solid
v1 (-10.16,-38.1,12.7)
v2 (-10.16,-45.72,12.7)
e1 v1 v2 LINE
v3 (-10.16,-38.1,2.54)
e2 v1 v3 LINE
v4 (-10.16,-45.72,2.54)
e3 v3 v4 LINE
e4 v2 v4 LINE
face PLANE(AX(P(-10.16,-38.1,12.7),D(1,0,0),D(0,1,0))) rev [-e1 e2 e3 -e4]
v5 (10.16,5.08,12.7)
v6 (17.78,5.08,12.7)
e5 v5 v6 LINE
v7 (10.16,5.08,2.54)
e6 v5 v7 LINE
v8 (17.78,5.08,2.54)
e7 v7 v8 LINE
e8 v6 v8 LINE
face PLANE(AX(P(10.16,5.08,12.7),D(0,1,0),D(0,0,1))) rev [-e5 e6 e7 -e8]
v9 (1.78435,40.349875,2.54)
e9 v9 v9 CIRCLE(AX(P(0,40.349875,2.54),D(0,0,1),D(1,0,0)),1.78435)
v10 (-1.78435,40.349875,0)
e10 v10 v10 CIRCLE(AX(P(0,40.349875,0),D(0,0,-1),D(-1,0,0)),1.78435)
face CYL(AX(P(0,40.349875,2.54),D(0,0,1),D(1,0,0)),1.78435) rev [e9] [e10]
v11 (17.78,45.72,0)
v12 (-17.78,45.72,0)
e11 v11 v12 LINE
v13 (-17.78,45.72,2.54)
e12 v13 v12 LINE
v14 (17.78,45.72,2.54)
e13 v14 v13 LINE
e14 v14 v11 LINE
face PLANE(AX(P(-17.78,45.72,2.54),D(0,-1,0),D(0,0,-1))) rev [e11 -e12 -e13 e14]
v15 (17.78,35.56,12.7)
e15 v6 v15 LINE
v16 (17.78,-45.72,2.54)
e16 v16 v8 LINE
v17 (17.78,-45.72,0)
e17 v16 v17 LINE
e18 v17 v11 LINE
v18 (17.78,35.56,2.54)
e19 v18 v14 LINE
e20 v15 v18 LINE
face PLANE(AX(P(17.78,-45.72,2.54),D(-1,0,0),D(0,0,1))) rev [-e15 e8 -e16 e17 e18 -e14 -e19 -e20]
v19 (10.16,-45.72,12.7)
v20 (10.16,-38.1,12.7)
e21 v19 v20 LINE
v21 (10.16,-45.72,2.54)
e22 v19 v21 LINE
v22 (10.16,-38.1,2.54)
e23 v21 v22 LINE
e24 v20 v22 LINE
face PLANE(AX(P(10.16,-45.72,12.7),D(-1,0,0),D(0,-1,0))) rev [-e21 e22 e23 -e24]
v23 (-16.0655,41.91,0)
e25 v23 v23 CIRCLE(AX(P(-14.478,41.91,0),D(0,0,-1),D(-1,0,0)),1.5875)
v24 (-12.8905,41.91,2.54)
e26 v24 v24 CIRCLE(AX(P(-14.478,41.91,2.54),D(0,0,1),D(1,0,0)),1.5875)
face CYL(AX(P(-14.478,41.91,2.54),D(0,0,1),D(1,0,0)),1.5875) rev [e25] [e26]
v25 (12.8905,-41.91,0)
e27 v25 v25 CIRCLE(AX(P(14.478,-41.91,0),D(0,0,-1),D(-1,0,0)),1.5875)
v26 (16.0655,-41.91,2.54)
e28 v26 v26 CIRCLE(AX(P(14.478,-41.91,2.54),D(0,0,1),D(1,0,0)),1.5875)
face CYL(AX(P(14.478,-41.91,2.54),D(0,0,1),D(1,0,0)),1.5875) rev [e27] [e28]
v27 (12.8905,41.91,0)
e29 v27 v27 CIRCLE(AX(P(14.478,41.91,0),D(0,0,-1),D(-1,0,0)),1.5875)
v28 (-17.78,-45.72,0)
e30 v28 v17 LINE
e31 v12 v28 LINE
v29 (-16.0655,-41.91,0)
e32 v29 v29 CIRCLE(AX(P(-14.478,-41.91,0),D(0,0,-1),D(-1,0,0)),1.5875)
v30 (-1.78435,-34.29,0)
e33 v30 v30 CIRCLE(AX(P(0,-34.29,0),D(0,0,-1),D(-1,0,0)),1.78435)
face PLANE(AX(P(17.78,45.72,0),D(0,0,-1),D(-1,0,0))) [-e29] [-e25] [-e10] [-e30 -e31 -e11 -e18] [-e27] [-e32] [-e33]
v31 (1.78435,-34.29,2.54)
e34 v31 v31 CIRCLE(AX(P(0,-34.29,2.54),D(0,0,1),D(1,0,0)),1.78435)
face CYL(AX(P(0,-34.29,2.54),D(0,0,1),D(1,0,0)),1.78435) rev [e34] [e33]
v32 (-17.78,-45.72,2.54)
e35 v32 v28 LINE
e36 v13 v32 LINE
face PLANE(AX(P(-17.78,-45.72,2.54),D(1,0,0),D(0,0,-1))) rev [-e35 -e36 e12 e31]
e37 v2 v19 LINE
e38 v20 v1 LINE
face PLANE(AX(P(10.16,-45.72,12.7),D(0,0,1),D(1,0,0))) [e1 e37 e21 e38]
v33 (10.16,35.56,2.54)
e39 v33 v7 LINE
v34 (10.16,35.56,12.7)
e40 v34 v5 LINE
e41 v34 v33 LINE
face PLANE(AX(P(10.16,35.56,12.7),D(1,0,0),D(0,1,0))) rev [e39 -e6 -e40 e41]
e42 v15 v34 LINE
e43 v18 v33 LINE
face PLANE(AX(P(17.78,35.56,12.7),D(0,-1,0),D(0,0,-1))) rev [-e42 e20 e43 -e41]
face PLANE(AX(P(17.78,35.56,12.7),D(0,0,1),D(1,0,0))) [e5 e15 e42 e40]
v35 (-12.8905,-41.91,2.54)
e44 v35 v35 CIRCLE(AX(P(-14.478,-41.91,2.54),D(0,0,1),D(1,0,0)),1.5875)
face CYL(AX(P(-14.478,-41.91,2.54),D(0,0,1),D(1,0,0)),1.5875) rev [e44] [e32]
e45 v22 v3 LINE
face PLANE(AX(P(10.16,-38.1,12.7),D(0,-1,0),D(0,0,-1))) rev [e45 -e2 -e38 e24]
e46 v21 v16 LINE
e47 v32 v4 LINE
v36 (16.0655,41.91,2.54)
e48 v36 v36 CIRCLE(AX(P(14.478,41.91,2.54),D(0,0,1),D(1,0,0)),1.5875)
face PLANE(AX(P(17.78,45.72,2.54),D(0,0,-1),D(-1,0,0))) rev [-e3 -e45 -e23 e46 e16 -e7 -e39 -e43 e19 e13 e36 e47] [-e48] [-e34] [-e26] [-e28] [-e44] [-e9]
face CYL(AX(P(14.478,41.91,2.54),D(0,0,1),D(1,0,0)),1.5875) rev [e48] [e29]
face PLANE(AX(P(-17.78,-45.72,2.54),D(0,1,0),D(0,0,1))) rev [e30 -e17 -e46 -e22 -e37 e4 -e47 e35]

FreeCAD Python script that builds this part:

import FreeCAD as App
import Part
import Sketcher
from FreeCAD import Vector
Q = App.Units.Quantity

doc = App.newDocument("Part")
body = doc.addObject("PartDesign::Body", "Body")

# Sketch on XY plane
sketch1 = body.newObject("Sketcher::SketchObject", "Sketch")
sketch1.AttachmentSupport = (doc.getObject("XY_Plane"), [""])
sketch1.MapMode = "FlatFace"
sketch1.addGeometry([
    Part.LineSegment(Vector(-18, 46, 0), Vector(-18, -46, 0)),
    Part.LineSegment(Vector(-18, -46, 0), Vector(18, -46, 0)),
    Part.LineSegment(Vector(18, -46, 0), Vector(18, 46, 0)),
    Part.LineSegment(Vector(18, 46, 0), Vector(-18, 46, 0)),
], False)
sketch1.addConstraint([
    Sketcher.Constraint("Coincident", 0, 2, 1, 1),
    Sketcher.Constraint("Coincident", 1, 2, 2, 1),
    Sketcher.Constraint("Coincident", 2, 2, 3, 1),
    Sketcher.Constraint("Coincident", 3, 2, 0, 1),
    Sketcher.Constraint("Vertical", 0),
    Sketcher.Constraint("Horizontal", 1),
    Sketcher.Constraint("Vertical", 2),
    Sketcher.Constraint("Horizontal", 3),
    Sketcher.Constraint("Symmetric", 0, 2, 2, 2, -1, 1),
    Sketcher.Constraint("DistanceX", 1, 1, 1, 2, Q("1.4 in")),
    Sketcher.Constraint("DistanceY", 0, 2, 0, 1, Q("3.6 in")),
])
pad1 = body.newObject("PartDesign::Pad", "Pad")
pad1.Profile = sketch1
pad1.Length = Q("0.1 in")

# Sketch on YZ plane
sketch2 = body.newObject("Sketcher::SketchObject", "Sketch001")
sketch2.AttachmentSupport = (doc.getObject("YZ_Plane"), [""])
sketch2.MapMode = "FlatFace"
sketch2.AttachmentOffset = App.Placement(Vector(0, 0, 0.57 * 25.4), App.Rotation())
sketch2.addGeometry([
    Part.LineSegment(Vector(41.9, -13.7, 0), Vector(41.9, 2.5, 0)),
    Part.LineSegment(Vector(41.9, 2.5, 0), Vector(40.3, 2.5, 0)),
    Part.LineSegment(Vector(40.3, 2.5, 0), Vector(40.3, -12.7, 0)),
    Part.LineSegment(Vector(40.3, -12.7, 0), Vector(41.9, -13.7, 0)),
], False)
sketch2.addGeometry(Part.LineSegment(Vector(41.9, 2.5, 0), Vector(41.9, -13.7, 0)), True)  # axis
sketch2.addConstraint([
    Sketcher.Constraint("Coincident", 0, 2, 1, 1),
    Sketcher.Constraint("Coincident", 1, 2, 2, 1),
    Sketcher.Constraint("Coincident", 2, 2, 3, 1),
    Sketcher.Constraint("Coincident", 3, 2, 0, 1),
    Sketcher.Constraint("Vertical", 0),
    Sketcher.Constraint("Horizontal", 1),
    Sketcher.Constraint("Vertical", 2),
    Sketcher.Constraint("Vertical", 4),
    Sketcher.Constraint("Coincident", 4, 1, 0, 2),
    Sketcher.Constraint("Equal", 0, 4),
    Sketcher.Constraint("DistanceY", 2, 2, 2, 1, Q("0.6 in")),
    Sketcher.Constraint("Angle", 3, Q("-31 deg")),
    Sketcher.Constraint("DistanceY", -1, 1, 0, 2, Q("0.1 in")),
    Sketcher.Constraint("DistanceX", 1, 2, 1, 1, Q("0.0625 in")),
    Sketcher.Constraint("DistanceX", -1, 1, 0, 2, Q("1.65 in")),
])
groove = body.newObject("PartDesign::Groove", "Groove")
groove.Profile = sketch2
groove.ReferenceAxis = (sketch2, ["Axis0"])
groove.Angle = 360
doc.recompute()

mirrored = body.newObject("PartDesign::Mirrored", "Mirrored")
mirrored.Originals = [groove]
mirrored.MirrorPlane = (doc.getObject("YZ_Plane"), [""])
body.Tip = mirrored
doc.recompute()

mirrored2 = body.newObject("PartDesign::Mirrored", "Mirrored001")
mirrored2.Originals = [groove]
mirrored2.MirrorPlane = (doc.getObject("XZ_Plane"), [""])
body.Tip = mirrored2

# Sketch on YZ plane
sketch3 = body.newObject("Sketcher::SketchObject", "Sketch002")
sketch3.AttachmentSupport = (doc.getObject("YZ_Plane"), [""])
sketch3.MapMode = "FlatFace"
sketch3.AttachmentOffset = App.Placement(Vector(0, 0, -0.57 * 25.4), App.Rotation())
sketch3.addGeometry([
    Part.LineSegment(Vector(-41.9, -13.7, 0), Vector(-41.9, 2.5, 0)),
    Part.LineSegment(Vector(-41.9, 2.5, 0), Vector(-40.3, 2.5, 0)),
    Part.LineSegment(Vector(-40.3, 2.5, 0), Vector(-40.3, -12.7, 0)),
    Part.LineSegment(Vector(-40.3, -12.7, 0), Vector(-41.9, -13.7, 0)),
], False)
sketch3.addGeometry(Part.LineSegment(Vector(-41.9, 2.5, 0), Vector(-41.9, -13.7, 0)), True)  # axis
sketch3.addConstraint([
    Sketcher.Constraint("Coincident", 0, 2, 1, 1),
    Sketcher.Constraint("Coincident", 1, 2, 2, 1),
    Sketcher.Constraint("Coincident", 2, 2, 3, 1),
    Sketcher.Constraint("Coincident", 3, 2, 0, 1),
    Sketcher.Constraint("Vertical", 0),
    Sketcher.Constraint("Horizontal", 1),
    Sketcher.Constraint("Vertical", 2),
    Sketcher.Constraint("Vertical", 4),
    Sketcher.Constraint("Coincident", 4, 1, 0, 2),
    Sketcher.Constraint("Equal", 0, 4),
    Sketcher.Constraint("DistanceY", 2, 2, 2, 1, Q("0.6 in")),
    Sketcher.Constraint("Angle", 3, Q("-149 deg")),
    Sketcher.Constraint("DistanceY", -1, 1, 0, 2, Q("0.1 in")),
    Sketcher.Constraint("DistanceX", 1, 1, 1, 2, Q("0.0625 in")),
    Sketcher.Constraint("DistanceX", 0, 2, -1, 1, Q("1.65 in")),
])
groove2 = body.newObject("PartDesign::Groove", "Groove001")
groove2.Profile = sketch3
groove2.ReferenceAxis = (sketch3, ["Axis0"])
groove2.Angle = 360

# Sketch on XY plane
sketch4 = body.newObject("Sketcher::SketchObject", "Sketch003")
sketch4.AttachmentSupport = (doc.getObject("XY_Plane"), [""])
sketch4.MapMode = "FlatFace"
sketch4.AttachmentOffset = App.Placement(Vector(0, 0, 0.1 * 25.4), App.Rotation())
sketch4.addGeometry([
    Part.Circle(Vector(0, -34.3, 0), Vector(0, 0, 1), 1.8),
    Part.Circle(Vector(0, 40.3, 0), Vector(0, 0, 1), 1.8),
], False)
sketch4.addConstraint([
    Sketcher.Constraint("Equal", 0, 1),
    Sketcher.Constraint("PointOnObject", 0, 3, -2),
    Sketcher.Constraint("PointOnObject", 1, 3, -2),
    Sketcher.Constraint("Diameter", 0, Q("0.1405 in")),
    Sketcher.Constraint("DistanceY", 0, 3, -1, 1, Q("1.35 in")),
    Sketcher.Constraint("DistanceY", -1, 1, 1, 3, Q("40.349875 mm")),
])
doc.recompute()
hole = body.newObject("PartDesign::Hole", "Hole")
hole.Profile = sketch4
hole.ThreadType = "None"
hole.Diameter = Q("0.1405 in")
hole.DepthType = "Dimension"
hole.Depth = Q("0.6 in")
hole.DrillPoint = "Angled"
hole.DrillPointAngle = 118

# Sketch on XY plane
sketch5 = body.newObject("Sketcher::SketchObject", "Sketch004")
sketch5.AttachmentSupport = (doc.getObject("XY_Plane"), [""])
sketch5.MapMode = "FlatFace"
sketch5.AttachmentOffset = App.Placement(Vector(0, 0, 0.1 * 25.4), App.Rotation())
sketch5.addGeometry([
    Part.LineSegment(Vector(10, -46, 0), Vector(10, -38, 0)),
    Part.LineSegment(Vector(10, -38, 0), Vector(-10, -38, 0)),
    Part.LineSegment(Vector(-10, -38, 0), Vector(-10, -46, 0)),
    Part.LineSegment(Vector(-10, -46, 0), Vector(10, -46, 0)),
], False)
sketch5.addConstraint([
    Sketcher.Constraint("Coincident", 0, 2, 1, 1),
    Sketcher.Constraint("Coincident", 1, 2, 2, 1),
    Sketcher.Constraint("Coincident", 2, 2, 3, 1),
    Sketcher.Constraint("Coincident", 3, 2, 0, 1),
    Sketcher.Constraint("Vertical", 0),
    Sketcher.Constraint("Horizontal", 1),
    Sketcher.Constraint("Vertical", 2),
    Sketcher.Constraint("Horizontal", 3),
    Sketcher.Constraint("DistanceX", 1, 2, 1, 1, Q("0.8 in")),
    Sketcher.Constraint("DistanceY", 0, 1, 0, 2, Q("0.3 in")),
    Sketcher.Constraint("DistanceX", -1, 1, 0, 2, Q("0.4 in")),
    Sketcher.Constraint("DistanceY", 0, 2, -1, 1, Q("1.5 in")),
])
pad2 = body.newObject("PartDesign::Pad", "Pad001")
pad2.Profile = sketch5
pad2.Length = Q("0.4 in")

# Sketch on XY plane
sketch6 = body.newObject("Sketcher::SketchObject", "Sketch005")
sketch6.AttachmentSupport = (doc.getObject("XY_Plane"), [""])
sketch6.MapMode = "FlatFace"
sketch6.AttachmentOffset = App.Placement(Vector(0, 0, 0.1 * 25.4), App.Rotation())
sketch6.addGeometry([
    Part.LineSegment(Vector(10, 36, 0), Vector(10, 5, 0)),
    Part.LineSegment(Vector(10, 5, 0), Vector(18, 5, 0)),
    Part.LineSegment(Vector(18, 5, 0), Vector(18, 36, 0)),
    Part.LineSegment(Vector(18, 36, 0), Vector(10, 36, 0)),
], False)
sketch6.addConstraint([
    Sketcher.Constraint("Coincident", 0, 2, 1, 1),
    Sketcher.Constraint("Coincident", 1, 2, 2, 1),
    Sketcher.Constraint("Coincident", 2, 2, 3, 1),
    Sketcher.Constraint("Coincident", 3, 2, 0, 1),
    Sketcher.Constraint("Vertical", 0),
    Sketcher.Constraint("Horizontal", 1),
    Sketcher.Constraint("Vertical", 2),
    Sketcher.Constraint("Horizontal", 3),
    Sketcher.Constraint("DistanceX", 1, 1, 1, 2, Q("0.3 in")),
    Sketcher.Constraint("DistanceY", 0, 2, 0, 1, Q("1.2 in")),
    Sketcher.Constraint("DistanceX", -1, 1, 0, 2, Q("0.4 in")),
    Sketcher.Constraint("DistanceY", -1, 1, 0, 2, Q("0.2 in")),
])
pad3 = body.newObject("PartDesign::Pad", "Pad002")
pad3.Profile = sketch6
pad3.Length = Q("0.4 in")

doc.recompute()
